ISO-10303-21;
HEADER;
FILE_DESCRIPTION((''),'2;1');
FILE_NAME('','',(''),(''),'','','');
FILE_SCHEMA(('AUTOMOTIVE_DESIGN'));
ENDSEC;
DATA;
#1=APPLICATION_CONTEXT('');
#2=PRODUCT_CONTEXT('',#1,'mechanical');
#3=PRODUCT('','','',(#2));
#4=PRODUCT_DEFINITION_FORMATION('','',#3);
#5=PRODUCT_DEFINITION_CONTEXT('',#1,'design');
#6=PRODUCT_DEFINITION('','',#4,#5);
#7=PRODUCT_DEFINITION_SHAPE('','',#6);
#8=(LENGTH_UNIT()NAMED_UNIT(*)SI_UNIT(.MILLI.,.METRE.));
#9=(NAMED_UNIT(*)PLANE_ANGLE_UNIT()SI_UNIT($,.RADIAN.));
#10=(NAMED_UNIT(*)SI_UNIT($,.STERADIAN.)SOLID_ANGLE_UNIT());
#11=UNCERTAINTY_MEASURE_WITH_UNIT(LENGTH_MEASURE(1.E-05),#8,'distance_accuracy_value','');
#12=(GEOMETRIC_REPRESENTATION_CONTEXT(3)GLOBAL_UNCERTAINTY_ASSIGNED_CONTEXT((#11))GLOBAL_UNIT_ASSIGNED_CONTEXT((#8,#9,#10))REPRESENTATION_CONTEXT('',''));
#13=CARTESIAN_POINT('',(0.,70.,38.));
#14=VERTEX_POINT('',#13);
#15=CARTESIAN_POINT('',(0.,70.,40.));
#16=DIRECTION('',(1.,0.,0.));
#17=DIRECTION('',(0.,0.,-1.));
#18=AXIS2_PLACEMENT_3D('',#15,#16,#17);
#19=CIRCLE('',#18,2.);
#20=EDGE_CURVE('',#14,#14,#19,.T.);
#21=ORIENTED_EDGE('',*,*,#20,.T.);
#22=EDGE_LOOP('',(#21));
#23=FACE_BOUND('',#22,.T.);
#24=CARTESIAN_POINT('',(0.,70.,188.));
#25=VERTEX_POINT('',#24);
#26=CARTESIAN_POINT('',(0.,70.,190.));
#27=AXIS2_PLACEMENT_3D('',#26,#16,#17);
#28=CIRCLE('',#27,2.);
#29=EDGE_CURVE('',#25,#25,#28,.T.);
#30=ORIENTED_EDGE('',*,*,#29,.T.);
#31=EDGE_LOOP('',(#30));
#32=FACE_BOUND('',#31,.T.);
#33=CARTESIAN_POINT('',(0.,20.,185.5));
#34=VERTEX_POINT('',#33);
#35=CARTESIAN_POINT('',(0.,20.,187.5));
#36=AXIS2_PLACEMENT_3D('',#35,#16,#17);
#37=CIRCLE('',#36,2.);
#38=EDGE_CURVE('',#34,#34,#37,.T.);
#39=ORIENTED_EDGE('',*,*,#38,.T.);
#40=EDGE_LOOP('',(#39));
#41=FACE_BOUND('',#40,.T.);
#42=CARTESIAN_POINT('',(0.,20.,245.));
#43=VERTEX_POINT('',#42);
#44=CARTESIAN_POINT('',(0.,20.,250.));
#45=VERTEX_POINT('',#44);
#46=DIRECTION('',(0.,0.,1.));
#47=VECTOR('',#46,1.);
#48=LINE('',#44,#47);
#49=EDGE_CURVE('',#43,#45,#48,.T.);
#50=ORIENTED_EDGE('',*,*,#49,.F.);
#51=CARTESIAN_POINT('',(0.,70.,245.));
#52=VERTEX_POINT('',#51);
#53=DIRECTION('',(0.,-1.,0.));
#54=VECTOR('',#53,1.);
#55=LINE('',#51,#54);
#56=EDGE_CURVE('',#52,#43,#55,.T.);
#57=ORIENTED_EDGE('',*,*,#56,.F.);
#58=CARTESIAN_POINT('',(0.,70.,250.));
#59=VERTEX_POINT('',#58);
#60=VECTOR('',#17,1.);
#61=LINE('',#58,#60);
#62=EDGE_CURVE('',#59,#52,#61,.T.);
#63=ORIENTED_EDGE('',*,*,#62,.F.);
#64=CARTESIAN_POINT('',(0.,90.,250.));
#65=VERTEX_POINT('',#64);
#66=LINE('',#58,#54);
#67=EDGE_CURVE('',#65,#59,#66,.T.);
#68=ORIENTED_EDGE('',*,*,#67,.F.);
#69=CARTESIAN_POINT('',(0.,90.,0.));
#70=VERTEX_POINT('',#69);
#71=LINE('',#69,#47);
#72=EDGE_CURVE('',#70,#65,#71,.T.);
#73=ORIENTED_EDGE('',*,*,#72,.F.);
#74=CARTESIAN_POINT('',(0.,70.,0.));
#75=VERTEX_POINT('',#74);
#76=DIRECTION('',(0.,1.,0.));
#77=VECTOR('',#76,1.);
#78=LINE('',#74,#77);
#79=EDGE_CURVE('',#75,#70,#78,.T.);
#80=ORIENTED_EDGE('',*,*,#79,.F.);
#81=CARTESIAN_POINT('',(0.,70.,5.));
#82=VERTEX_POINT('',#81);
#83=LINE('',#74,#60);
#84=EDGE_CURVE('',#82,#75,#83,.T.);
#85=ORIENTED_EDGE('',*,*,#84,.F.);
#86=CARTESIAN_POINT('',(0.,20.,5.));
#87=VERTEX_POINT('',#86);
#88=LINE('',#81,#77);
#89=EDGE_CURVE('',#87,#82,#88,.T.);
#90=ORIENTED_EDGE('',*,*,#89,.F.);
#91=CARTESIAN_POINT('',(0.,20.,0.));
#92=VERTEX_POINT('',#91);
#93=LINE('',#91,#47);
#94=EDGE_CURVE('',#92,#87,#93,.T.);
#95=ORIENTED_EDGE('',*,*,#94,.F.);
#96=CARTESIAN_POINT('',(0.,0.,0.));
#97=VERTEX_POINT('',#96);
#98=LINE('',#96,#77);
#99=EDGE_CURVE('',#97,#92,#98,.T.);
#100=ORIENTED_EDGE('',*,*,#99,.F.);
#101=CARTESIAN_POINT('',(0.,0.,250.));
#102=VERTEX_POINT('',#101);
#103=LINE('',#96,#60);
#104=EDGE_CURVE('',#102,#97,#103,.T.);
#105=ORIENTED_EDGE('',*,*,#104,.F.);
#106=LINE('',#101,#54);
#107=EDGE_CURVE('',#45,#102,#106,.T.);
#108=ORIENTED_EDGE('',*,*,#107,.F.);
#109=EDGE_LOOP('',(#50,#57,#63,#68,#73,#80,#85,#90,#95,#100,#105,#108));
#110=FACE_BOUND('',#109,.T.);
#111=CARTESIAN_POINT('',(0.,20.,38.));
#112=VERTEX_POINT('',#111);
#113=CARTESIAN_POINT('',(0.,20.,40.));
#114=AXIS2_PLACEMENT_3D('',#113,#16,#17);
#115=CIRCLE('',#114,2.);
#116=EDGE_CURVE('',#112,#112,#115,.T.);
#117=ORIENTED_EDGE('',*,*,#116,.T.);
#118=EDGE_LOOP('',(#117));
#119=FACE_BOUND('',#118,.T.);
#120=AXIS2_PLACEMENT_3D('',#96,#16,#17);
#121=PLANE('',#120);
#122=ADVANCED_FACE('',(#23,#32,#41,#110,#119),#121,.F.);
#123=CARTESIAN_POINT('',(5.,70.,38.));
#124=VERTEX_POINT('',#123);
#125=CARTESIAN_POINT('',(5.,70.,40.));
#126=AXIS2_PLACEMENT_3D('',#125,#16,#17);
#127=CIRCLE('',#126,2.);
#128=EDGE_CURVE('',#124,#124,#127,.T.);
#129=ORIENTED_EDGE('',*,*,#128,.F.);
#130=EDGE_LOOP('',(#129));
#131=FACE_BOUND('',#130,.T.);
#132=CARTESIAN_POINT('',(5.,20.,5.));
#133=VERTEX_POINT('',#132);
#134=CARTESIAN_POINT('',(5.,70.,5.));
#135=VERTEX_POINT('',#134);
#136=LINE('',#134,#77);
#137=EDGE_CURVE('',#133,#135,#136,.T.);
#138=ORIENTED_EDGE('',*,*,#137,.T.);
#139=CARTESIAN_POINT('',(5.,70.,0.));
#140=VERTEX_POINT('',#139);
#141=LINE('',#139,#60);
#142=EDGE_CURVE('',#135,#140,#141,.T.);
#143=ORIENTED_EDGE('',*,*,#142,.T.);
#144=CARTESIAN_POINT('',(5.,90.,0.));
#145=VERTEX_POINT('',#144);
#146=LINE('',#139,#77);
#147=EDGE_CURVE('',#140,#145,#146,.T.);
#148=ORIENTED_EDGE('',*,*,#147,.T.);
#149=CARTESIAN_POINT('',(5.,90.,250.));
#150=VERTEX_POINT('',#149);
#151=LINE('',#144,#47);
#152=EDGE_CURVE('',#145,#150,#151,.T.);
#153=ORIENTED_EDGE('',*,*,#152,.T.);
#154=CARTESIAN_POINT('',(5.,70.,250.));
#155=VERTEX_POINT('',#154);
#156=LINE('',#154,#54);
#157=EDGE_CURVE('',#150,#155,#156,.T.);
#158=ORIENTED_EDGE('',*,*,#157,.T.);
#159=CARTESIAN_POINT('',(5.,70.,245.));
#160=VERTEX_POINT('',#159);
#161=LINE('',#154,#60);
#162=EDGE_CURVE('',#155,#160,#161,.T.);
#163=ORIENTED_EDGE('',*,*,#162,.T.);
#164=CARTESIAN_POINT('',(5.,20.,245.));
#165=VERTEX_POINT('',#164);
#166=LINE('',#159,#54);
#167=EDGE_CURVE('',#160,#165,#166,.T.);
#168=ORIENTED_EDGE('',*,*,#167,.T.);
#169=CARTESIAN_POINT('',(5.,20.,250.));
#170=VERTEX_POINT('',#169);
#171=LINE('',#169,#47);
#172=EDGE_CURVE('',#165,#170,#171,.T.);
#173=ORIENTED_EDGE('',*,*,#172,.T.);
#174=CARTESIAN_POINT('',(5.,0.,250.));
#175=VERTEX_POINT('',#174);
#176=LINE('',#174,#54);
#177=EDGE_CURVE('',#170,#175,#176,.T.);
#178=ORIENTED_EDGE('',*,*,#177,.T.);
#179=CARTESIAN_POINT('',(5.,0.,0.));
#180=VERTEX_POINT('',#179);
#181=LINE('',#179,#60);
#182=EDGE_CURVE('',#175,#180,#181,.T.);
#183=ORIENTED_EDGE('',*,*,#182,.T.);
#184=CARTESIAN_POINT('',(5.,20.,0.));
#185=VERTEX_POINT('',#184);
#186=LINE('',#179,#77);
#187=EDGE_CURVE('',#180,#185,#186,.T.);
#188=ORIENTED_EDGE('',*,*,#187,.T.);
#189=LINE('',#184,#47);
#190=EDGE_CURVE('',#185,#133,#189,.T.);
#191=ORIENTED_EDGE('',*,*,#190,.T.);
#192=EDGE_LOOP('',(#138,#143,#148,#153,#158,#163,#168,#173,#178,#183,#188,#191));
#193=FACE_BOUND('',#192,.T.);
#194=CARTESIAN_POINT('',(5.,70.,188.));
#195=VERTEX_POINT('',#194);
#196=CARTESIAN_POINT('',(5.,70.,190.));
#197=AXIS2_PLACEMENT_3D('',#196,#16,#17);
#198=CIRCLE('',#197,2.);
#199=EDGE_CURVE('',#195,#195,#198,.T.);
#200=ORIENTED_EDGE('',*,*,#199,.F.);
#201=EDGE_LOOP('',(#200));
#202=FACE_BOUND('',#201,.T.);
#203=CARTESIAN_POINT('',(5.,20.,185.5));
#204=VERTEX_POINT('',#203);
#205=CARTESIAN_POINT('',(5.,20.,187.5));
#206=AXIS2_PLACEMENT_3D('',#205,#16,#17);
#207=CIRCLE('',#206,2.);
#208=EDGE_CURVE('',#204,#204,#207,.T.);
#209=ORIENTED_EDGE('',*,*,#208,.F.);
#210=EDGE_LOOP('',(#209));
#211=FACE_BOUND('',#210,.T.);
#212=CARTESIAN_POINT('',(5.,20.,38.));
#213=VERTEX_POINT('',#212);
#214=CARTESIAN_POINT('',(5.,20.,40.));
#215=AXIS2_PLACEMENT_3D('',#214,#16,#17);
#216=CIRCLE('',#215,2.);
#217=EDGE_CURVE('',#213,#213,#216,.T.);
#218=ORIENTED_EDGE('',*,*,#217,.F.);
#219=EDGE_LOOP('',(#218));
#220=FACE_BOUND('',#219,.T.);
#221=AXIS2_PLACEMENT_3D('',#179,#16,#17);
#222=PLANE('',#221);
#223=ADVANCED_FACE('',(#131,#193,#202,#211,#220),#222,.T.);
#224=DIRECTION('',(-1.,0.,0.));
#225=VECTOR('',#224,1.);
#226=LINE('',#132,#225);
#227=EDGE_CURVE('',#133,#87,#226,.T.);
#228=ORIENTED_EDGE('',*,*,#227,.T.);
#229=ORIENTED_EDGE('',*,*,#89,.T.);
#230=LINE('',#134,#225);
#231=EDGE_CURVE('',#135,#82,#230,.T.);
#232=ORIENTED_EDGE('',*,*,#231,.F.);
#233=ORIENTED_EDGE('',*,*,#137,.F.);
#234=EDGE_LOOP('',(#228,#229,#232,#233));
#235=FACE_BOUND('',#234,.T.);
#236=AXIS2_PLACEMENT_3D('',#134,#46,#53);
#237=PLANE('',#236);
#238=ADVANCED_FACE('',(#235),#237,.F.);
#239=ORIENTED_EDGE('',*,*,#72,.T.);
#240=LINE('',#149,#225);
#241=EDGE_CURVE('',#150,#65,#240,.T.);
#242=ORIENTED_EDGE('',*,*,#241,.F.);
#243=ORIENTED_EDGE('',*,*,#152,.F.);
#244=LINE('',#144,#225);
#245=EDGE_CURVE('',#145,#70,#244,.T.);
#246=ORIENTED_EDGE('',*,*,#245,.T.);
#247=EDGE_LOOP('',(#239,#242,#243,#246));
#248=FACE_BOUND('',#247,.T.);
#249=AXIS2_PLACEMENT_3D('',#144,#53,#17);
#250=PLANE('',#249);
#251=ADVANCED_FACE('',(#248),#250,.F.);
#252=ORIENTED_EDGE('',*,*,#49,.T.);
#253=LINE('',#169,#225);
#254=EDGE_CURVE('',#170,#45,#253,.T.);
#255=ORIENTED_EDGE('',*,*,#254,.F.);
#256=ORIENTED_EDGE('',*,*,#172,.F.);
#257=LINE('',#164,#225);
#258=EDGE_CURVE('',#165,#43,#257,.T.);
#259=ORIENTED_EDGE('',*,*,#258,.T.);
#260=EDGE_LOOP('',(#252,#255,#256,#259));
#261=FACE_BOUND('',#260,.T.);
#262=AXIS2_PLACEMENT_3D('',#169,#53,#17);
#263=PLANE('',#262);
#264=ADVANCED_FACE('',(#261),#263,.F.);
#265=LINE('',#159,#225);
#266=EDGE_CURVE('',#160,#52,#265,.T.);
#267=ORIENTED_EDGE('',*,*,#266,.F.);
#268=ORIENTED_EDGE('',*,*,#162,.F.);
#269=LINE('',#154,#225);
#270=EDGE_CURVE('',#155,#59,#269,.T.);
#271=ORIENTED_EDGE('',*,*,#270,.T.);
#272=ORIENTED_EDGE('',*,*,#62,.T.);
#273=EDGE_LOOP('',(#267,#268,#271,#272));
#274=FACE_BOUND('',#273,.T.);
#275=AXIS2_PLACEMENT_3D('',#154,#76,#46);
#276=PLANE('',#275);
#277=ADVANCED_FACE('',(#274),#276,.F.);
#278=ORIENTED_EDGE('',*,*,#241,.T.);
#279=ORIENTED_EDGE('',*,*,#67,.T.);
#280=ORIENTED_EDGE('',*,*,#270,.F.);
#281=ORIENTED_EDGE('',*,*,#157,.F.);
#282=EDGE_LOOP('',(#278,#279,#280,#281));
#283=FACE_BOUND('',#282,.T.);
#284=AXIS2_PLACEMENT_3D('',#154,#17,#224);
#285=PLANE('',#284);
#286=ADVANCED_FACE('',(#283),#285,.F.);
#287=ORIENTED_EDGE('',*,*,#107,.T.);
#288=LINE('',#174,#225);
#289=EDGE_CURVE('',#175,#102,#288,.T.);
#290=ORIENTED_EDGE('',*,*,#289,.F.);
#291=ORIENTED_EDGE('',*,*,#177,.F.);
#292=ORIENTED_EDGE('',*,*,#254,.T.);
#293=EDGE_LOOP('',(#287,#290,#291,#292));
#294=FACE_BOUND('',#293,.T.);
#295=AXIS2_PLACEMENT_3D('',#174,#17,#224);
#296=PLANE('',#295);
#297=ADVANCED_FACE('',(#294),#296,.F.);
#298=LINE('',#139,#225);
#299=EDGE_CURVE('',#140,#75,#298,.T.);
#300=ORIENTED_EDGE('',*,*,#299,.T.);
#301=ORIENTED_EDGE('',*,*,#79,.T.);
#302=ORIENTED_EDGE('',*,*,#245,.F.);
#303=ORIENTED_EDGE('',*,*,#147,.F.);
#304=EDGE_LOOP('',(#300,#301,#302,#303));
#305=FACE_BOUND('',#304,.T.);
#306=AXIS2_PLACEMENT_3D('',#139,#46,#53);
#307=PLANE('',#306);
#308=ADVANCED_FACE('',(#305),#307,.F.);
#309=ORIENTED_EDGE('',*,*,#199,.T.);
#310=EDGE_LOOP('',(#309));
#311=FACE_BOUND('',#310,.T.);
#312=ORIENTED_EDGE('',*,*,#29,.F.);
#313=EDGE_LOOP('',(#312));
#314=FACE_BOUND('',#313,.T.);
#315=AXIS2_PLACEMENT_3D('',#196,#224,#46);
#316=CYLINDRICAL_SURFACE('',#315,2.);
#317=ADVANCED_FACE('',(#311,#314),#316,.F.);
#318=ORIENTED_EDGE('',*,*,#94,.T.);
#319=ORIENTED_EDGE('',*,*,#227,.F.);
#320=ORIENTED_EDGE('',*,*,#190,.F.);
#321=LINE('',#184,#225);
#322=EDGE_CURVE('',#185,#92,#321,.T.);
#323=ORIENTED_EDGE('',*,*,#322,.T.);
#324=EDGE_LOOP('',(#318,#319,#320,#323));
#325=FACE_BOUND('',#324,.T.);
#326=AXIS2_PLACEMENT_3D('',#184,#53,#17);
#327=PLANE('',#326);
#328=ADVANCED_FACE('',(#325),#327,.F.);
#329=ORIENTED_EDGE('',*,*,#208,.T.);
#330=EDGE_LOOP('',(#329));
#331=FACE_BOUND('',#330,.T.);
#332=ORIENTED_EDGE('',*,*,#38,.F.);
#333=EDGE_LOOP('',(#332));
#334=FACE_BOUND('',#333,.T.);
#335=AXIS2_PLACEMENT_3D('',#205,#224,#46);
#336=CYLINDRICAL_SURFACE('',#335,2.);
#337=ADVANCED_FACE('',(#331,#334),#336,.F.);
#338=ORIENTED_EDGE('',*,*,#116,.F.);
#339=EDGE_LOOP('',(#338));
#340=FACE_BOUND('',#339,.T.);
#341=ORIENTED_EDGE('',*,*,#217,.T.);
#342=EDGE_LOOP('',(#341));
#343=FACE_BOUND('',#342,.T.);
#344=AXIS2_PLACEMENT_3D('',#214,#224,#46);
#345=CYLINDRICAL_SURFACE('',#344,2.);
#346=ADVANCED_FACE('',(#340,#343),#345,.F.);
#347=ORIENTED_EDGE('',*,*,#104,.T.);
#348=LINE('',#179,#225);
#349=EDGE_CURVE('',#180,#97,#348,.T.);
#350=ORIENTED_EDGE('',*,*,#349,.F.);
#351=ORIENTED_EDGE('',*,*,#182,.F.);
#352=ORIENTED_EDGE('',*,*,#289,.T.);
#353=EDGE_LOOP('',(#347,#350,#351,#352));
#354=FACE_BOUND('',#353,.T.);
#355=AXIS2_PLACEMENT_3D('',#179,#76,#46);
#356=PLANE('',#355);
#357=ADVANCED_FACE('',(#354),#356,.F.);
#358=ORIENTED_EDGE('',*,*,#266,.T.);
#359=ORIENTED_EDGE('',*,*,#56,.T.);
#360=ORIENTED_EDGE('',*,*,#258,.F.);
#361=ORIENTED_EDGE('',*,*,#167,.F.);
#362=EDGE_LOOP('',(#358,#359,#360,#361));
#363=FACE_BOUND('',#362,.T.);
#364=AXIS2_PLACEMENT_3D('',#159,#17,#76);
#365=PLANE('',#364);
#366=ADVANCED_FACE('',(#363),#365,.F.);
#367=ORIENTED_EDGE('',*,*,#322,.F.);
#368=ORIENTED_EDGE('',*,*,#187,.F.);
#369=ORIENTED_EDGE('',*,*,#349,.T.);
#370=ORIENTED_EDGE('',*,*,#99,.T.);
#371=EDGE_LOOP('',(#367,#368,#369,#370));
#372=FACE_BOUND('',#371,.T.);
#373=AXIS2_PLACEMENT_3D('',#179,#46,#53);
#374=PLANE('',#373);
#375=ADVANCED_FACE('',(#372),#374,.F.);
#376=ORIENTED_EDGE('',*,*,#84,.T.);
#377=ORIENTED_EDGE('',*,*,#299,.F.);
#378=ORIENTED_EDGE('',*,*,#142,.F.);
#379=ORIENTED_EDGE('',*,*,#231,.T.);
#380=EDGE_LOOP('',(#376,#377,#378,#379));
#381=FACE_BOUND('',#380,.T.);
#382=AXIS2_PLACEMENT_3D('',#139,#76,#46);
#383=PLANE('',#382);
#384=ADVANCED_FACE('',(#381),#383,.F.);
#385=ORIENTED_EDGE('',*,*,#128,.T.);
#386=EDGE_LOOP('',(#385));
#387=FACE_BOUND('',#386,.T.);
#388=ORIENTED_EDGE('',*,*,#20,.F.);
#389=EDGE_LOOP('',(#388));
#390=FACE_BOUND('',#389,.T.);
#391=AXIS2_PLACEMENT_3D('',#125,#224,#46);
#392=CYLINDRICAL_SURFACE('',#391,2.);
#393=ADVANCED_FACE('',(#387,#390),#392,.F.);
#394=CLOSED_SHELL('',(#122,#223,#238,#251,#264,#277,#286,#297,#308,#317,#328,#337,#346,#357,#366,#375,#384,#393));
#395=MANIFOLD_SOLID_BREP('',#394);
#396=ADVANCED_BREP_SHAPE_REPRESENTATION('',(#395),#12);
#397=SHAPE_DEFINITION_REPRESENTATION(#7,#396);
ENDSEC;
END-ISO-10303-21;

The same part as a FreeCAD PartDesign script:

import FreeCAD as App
import Part
import Sketcher

V = App.Vector
Q = App.Units.Quantity


def add_polygon(sketch, points):
    """Adds a closed chain of lines whose ends are joined by coincident constraints."""
    first, n = sketch.GeometryCount, len(points)
    for a, b in zip(points, points[1:] + points[:1]):
        sketch.addGeometry(Part.LineSegment(App.Vector(*a, 0), App.Vector(*b, 0)), False)
    for i in range(n):
        sketch.addConstraint(Sketcher.Constraint("Coincident", first + i, 2, first + (i + 1) % n, 1))

doc = App.newDocument("Part")
body = doc.addObject("PartDesign::Body", "Body")

sketch1 = body.newObject("Sketcher::SketchObject", "Sketch")
sketch1.AttachmentSupport = (doc.getObject("YZ_Plane"), [""])
sketch1.MapMode = "FlatFace"
add_polygon(sketch1, [(0, 250), (0, 0), (20, 0), (20, 5), (70, 5), (70, 0), (90, 0), (90, 250), (70, 250), (70, 245), (20, 245), (20, 250)])
sketch1.addGeometry(Part.Circle(V(20, 40, 0), V(0, 0, 1), 2), False)
sketch1.addGeometry(Part.Circle(V(20, 187.5, 0), V(0, 0, 1), 2), False)
sketch1.addGeometry(Part.Circle(V(70, 40, 0), V(0, 0, 1), 2), False)
sketch1.addGeometry(Part.Circle(V(70, 190, 0), V(0, 0, 1), 2), False)
sketch1.addConstraint([
    Sketcher.Constraint("Vertical", 0),
    Sketcher.Constraint("Horizontal", 1),
    Sketcher.Constraint("Vertical", 2),
    Sketcher.Constraint("Horizontal", 3),
    Sketcher.Constraint("Vertical", 4),
    Sketcher.Constraint("Horizontal", 5),
    Sketcher.Constraint("Vertical", 6),
    Sketcher.Constraint("Horizontal", 7),
    Sketcher.Constraint("Vertical", 8),
    Sketcher.Constraint("Horizontal", 9),
    Sketcher.Constraint("Vertical", 10),
    Sketcher.Constraint("Horizontal", 11),
    Sketcher.Constraint("Coincident", 0, 2, -1, 1),
    Sketcher.Constraint("Equal", 12, 13),
    Sketcher.Constraint("Equal", 13, 14),
    Sketcher.Constraint("Equal", 14, 15),
    Sketcher.Constraint("PointOnObject", 4, 2, -1),
    Sketcher.Constraint("Horizontal", 12, 3, 14, 3),
    Sketcher.Constraint("Horizontal", 7, 2, 10, 2),
    Sketcher.Constraint("Vertical", 12, 3, 13, 3),
    Sketcher.Constraint("Vertical", 14, 3, 15, 3),
    Sketcher.Constraint("Vertical", 13, 3, 1, 2),
    Sketcher.Constraint("Vertical", 15, 3, 3, 2),
    Sketcher.Constraint("Vertical", 4, 2, 7, 2),
    Sketcher.Constraint("Vertical", 2, 2, 9, 2),
    Sketcher.Constraint("Equal", 1, 5),
    Sketcher.Constraint("Equal", 4, 8),
    Sketcher.Constraint("Diameter", 12, Q("4 mm")),
    Sketcher.Constraint("DistanceX", 1, 1, 1, 2, Q("20 mm")),
    Sketcher.Constraint("DistanceX", 3, 1, 3, 2, Q("50 mm")),
    Sketcher.Constraint("DistanceY", 0, 2, 0, 1, Q("250 mm")),
    Sketcher.Constraint("DistanceY", 2, 1, 2, 2, Q("5 mm")),
    Sketcher.Constraint("DistanceY", -1, 1, 12, 3, Q("40 mm")),
    Sketcher.Constraint("DistanceY", -1, 1, 15, 3, Q("190 mm")),
    Sketcher.Constraint("DistanceY", -1, 1, 13, 3, Q("187.5 mm")),
])
pad1 = body.newObject("PartDesign::Pad", "Pad")
pad1.Profile = sketch1
pad1.Length = 5

doc.recompute()
